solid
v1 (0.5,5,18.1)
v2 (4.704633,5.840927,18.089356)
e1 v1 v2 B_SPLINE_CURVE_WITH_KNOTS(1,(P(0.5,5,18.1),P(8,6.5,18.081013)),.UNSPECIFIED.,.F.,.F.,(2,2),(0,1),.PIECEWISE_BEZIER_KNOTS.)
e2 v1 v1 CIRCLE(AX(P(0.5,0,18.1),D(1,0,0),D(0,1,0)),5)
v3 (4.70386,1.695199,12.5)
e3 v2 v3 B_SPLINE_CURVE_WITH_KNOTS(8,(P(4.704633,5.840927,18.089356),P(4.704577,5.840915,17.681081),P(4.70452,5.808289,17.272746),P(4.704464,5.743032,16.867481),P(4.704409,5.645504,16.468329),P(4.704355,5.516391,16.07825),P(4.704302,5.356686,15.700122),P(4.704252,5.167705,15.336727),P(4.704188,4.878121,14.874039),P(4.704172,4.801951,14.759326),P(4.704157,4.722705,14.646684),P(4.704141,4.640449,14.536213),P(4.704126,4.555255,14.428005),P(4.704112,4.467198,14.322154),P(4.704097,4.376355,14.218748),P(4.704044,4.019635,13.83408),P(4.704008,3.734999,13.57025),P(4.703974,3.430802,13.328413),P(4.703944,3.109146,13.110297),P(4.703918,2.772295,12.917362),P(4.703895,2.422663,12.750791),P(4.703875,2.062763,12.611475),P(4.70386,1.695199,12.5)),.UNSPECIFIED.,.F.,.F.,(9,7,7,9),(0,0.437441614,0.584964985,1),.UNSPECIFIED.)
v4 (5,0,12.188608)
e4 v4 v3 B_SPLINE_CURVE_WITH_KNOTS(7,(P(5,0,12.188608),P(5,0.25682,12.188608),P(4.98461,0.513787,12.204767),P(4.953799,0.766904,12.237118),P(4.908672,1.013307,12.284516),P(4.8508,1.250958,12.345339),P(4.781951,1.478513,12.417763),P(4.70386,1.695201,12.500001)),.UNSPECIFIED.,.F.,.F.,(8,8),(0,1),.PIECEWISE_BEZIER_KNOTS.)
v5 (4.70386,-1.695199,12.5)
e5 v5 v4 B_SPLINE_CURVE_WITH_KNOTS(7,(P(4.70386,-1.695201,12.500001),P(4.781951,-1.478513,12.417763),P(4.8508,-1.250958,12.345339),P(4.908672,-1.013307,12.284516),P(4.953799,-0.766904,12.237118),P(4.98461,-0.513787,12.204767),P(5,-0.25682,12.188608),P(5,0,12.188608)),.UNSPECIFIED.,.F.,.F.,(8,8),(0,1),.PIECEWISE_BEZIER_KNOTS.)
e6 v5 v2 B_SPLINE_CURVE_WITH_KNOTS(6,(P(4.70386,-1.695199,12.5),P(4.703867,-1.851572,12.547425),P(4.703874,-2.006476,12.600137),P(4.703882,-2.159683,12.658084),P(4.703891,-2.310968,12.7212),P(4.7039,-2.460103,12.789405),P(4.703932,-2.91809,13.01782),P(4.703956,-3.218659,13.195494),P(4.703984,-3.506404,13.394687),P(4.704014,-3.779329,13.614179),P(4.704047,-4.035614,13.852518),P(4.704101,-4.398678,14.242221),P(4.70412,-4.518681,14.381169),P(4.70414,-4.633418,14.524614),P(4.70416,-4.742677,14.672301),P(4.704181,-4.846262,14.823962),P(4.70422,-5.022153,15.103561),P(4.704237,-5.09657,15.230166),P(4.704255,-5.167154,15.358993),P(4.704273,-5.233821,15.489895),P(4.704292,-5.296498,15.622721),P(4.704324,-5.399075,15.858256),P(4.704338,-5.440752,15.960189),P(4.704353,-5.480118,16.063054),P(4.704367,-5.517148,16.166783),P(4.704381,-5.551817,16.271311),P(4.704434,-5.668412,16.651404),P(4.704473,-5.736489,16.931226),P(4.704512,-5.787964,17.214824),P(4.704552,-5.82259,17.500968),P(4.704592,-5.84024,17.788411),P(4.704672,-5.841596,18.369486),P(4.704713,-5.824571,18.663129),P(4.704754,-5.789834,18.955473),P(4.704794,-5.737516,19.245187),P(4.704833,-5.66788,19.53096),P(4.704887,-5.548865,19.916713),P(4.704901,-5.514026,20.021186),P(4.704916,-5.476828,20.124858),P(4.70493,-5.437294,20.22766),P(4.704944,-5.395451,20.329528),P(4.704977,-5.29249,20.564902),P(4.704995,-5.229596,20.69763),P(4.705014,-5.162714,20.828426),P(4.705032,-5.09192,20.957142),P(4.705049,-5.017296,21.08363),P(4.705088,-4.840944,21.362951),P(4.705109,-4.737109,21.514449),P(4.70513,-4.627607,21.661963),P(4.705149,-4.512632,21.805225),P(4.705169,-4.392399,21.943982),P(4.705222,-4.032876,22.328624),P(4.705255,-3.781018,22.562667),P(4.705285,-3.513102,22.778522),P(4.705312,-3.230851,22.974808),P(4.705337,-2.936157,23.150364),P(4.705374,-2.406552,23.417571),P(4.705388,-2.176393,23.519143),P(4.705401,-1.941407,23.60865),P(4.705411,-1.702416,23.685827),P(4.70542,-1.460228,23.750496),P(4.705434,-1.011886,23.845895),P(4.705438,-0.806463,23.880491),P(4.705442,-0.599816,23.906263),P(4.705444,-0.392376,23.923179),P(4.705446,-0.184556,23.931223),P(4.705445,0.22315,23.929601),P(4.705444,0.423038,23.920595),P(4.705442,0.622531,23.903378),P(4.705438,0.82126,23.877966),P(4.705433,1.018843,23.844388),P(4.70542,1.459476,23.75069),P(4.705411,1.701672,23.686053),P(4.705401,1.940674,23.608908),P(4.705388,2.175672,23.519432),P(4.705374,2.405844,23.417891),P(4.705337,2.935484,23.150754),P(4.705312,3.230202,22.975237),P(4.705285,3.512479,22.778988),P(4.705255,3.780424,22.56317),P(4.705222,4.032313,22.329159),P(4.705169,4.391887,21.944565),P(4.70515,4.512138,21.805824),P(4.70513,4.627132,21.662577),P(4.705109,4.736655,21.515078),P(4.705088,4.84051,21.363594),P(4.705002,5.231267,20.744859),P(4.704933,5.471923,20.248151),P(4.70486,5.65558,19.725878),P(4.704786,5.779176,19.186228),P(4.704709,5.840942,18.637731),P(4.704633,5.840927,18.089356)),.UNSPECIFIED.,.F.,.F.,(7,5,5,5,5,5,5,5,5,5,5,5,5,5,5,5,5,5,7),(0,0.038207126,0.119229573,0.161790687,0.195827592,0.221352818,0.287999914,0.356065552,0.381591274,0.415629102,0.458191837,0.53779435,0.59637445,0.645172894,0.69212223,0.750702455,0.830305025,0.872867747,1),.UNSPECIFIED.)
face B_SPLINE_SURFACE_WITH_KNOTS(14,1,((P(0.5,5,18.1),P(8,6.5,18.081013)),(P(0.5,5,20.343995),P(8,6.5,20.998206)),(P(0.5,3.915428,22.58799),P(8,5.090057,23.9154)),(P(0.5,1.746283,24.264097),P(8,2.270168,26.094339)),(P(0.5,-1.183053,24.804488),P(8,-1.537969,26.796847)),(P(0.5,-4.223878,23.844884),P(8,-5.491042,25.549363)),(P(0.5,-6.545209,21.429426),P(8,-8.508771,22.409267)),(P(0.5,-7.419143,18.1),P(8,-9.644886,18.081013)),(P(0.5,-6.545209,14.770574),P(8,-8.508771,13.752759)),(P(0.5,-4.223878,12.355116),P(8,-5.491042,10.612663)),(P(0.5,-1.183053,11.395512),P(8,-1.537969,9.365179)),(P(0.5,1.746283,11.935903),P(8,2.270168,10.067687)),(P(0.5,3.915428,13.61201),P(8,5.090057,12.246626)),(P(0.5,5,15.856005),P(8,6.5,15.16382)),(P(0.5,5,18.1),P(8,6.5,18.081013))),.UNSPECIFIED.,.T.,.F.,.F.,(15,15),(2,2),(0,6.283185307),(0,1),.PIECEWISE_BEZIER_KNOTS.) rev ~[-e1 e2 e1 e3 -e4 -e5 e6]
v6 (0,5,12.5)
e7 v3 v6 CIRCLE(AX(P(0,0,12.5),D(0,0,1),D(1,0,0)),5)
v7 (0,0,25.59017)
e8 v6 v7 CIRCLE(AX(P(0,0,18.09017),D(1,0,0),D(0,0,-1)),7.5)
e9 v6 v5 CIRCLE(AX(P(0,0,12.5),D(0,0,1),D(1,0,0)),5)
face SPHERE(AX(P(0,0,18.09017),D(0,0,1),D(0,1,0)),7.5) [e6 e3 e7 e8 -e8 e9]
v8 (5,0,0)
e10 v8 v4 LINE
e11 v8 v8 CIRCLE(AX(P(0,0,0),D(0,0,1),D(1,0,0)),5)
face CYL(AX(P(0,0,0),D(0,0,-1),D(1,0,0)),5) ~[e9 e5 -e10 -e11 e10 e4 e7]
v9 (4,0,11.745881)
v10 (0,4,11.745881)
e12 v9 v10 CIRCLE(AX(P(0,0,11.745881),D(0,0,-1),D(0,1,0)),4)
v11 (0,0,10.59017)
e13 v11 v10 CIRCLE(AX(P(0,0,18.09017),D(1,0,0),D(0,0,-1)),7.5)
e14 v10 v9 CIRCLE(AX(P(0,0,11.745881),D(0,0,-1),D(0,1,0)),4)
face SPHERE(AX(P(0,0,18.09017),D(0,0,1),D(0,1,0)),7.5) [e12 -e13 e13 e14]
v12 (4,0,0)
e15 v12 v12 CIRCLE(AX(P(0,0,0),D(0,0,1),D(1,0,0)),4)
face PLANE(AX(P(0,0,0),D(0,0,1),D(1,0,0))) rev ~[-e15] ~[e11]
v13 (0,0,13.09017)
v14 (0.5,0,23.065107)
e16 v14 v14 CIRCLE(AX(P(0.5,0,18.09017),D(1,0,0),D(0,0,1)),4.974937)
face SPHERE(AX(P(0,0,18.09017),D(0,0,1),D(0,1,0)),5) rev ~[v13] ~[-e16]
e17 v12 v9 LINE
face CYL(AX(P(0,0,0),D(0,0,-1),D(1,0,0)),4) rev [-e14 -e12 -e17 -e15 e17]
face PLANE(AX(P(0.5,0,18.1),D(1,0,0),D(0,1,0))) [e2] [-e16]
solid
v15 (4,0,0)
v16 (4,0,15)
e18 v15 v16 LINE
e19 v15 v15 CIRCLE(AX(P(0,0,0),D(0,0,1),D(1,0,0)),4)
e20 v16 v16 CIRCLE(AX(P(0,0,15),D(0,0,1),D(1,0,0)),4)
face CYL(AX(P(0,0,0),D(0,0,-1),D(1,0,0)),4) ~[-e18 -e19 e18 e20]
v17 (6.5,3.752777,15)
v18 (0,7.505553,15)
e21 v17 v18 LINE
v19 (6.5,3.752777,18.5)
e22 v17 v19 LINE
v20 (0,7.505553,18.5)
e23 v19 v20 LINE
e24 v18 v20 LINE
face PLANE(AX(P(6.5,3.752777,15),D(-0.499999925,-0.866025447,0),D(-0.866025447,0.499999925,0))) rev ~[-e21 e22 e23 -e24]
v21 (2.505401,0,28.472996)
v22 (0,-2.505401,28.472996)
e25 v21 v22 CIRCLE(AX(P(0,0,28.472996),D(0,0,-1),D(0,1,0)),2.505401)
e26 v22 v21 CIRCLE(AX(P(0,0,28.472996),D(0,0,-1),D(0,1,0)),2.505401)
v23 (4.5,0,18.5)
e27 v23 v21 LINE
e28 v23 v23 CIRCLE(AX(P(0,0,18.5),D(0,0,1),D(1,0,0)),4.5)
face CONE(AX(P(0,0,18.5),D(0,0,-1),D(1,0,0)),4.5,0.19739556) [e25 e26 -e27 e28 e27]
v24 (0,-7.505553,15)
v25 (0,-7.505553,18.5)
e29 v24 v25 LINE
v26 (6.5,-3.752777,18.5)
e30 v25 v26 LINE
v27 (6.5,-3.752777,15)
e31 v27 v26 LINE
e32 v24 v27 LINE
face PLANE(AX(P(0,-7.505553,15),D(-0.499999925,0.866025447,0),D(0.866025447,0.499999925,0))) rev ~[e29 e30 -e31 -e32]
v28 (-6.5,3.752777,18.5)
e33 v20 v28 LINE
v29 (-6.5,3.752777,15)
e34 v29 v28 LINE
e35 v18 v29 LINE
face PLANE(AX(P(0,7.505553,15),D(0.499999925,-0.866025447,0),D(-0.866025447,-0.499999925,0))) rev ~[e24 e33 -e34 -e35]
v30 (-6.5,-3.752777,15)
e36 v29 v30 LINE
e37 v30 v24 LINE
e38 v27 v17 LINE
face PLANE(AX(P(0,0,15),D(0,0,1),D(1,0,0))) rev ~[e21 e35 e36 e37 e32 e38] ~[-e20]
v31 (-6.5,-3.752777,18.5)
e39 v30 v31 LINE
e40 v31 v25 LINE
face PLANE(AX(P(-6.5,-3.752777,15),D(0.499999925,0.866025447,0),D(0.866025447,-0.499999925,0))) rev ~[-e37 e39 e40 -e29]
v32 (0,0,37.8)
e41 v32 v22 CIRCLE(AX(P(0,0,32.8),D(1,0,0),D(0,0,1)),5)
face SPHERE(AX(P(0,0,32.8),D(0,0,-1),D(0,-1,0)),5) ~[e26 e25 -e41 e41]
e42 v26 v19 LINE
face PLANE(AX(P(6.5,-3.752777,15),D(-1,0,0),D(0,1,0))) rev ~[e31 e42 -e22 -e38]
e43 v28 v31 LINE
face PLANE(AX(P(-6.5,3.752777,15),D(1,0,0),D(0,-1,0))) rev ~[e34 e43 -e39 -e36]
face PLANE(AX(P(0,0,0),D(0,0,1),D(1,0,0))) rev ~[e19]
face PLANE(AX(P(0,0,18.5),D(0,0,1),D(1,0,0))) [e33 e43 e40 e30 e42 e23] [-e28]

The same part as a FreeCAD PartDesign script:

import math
import FreeCAD as App
import Part
import Sketcher
Q = App.Units.Quantity


def add_polygon(sketch, points):
    """Adds a closed chain of lines whose ends are joined by coincident constraints."""
    first, n = sketch.GeometryCount, len(points)
    for a, b in zip(points, points[1:] + points[:1]):
        sketch.addGeometry(Part.LineSegment(App.Vector(*a, 0), App.Vector(*b, 0)), False)
    for i in range(n):
        sketch.addConstraint(Sketcher.Constraint("Coincident", first + i, 2, first + (i + 1) % n, 1))

doc = App.newDocument("Part")
params = doc.addObject("Spreadsheet::Sheet", "Params")
for row, (alias, value) in enumerate([
    ("sketch1_diameter", "8 mm"),
    ("pad1_length", "15 mm"),
    ("pad2_length", "3.5 mm"),
    ("sketch3_height", "10 mm"),
    ("sketch3_width", "4.5 mm"),
    ("sketch3_width2", "2.5 mm"),
    ("revolution_angle", "360 deg"),
    ("sketch4_radius", "5 mm"),
    ("revolution2_angle", "360 deg"),
    ("sketch5_diameter", "10 mm"),
    ("sketch5_diameter2", "8 mm"),
    ("pad3_length", "12.5 mm"),
    ("sketch6_radius", "5 mm"),
    ("sketch6_radius2", "7.5 mm"),
    ("revolution3_angle", "360 deg"),
    ("sketch7_diameter", "10 mm"),
    ("sketch8_diameter", "13 mm"),
], start=1):
    params.set(f"A{row}", alias)
    params.set(f"B{row}", "=" + value)
    params.setAlias(f"B{row}", alias)

body = doc.addObject("PartDesign::Body", "Body")

# Sketch on XY plane
sketch1 = body.newObject("Sketcher::SketchObject", "Sketch")
sketch1.AttachmentSupport = (doc.getObject("XY_Plane"), [""])
sketch1.MapMode = "FlatFace"
sketch1.addGeometry(Part.Circle(App.Vector(0, 0, 0), App.Vector(0, 0, 1), 4), False)
sketch1.addConstraint(Sketcher.Constraint("Coincident", 0, 3, -1, 1))
sketch1.addConstraint(Sketcher.Constraint("Diameter", 0, 8.0))
sketch1.setExpression("Constraints[1]", "Params.sketch1_diameter")
pad1 = body.newObject("PartDesign::Pad", "Pad")
pad1.Profile = sketch1
pad1.setExpression("Length", "Params.pad1_length")

# Sketch on XY plane
sketch2 = body.newObject("Sketcher::SketchObject", "Sketch001")
sketch2.AttachmentSupport = (doc.getObject("XY_Plane"), [""])
sketch2.MapMode = "FlatFace"
sketch2.AttachmentOffset = App.Placement(App.Vector(0, 0, 15), App.Rotation())
add_polygon(sketch2, [(0, -7.505553), (6.5, -3.752777), (6.5, 3.752777), (0, 7.505553), (-6.5, 3.752777), (-6.5, -3.752777)])  # lines 0-5
sketch2.addConstraint(Sketcher.Constraint("Vertical", 1))
sketch2.addConstraint(Sketcher.Constraint("Vertical", 4))
sketch2.addConstraint(Sketcher.Constraint("Symmetric", 0, 2, 3, 2, -1, 1))
sketch2.addConstraint(Sketcher.Constraint("Symmetric", 2, 2, 5, 2, -1, 1))
sketch2.addConstraint(Sketcher.Constraint("PointOnObject", 2, 2, -2))
sketch2.addConstraint(Sketcher.Constraint("Parallel", 2, 5))
sketch2.addConstraint(Sketcher.Constraint("Horizontal", 1, 2, 3, 2))
sketch2.addConstraint(Sketcher.Constraint("Angle", 0, Q("29.999995 deg")))
sketch2.addConstraint(Sketcher.Constraint("DistanceX", 3, 2, 1, 2, 13.0))
sketch2.addConstraint(Sketcher.Constraint("DistanceY", 1, 1, 1, 2, 7.505554))
pad2 = body.newObject("PartDesign::Pad", "Pad001")
pad2.Profile = sketch2
pad2.setExpression("Length", "Params.pad2_length")

# Sketch on XZ plane
sketch3 = body.newObject("Sketcher::SketchObject", "Sketch002")
sketch3.AttachmentSupport = (doc.getObject("XZ_Plane"), [""])
sketch3.MapMode = "FlatFace"
add_polygon(sketch3, [(0, 18.5), (4.5, 18.5), (2.5, 28.5), (0, 28.5)])  # lines 0-3
sketch3.addConstraint(Sketcher.Constraint("Horizontal", 0))
sketch3.addConstraint(Sketcher.Constraint("Horizontal", 2))
sketch3.addConstraint(Sketcher.Constraint("Vertical", 3))
sketch3.addConstraint(Sketcher.Constraint("PointOnObject", 2, 2, -2))
sketch3.addConstraint(Sketcher.Constraint("DistanceY", 3, 2, 3, 1, 10.0))
sketch3.addConstraint(Sketcher.Constraint("DistanceX", 0, 1, 0, 2, 4.5))
sketch3.addConstraint(Sketcher.Constraint("DistanceX", 2, 2, 2, 1, 2.5))
sketch3.addConstraint(Sketcher.Constraint("DistanceY", -1, 1, 0, 2, 18.5))
sketch3.setExpression("Constraints[8]", "Params.sketch3_height")
sketch3.setExpression("Constraints[9]", "Params.sketch3_width")
sketch3.setExpression("Constraints[10]", "Params.sketch3_width2")
revolution = body.newObject("PartDesign::Revolution", "Revolution")
revolution.Profile = sketch3
revolution.ReferenceAxis = (sketch3, ["V_Axis"])
revolution.setExpression("Angle", "Params.revolution_angle")

# Sketch on YZ plane
sketch4 = body.newObject("Sketcher::SketchObject", "Sketch003")
sketch4.AttachmentSupport = (doc.getObject("YZ_Plane"), [""])
sketch4.MapMode = "FlatFace"
sketch4.addGeometry(Part.ArcOfCircle(Part.Circle(App.Vector(0, 32.8, 0), App.Vector(0, 0, 1), 5), math.radians(90), math.radians(270)), False)
sketch4.addGeometry(Part.LineSegment(App.Vector(0, 27.8, 0), App.Vector(0, 37.8, 0)), False)
sketch4.addConstraint(Sketcher.Constraint("Coincident", 0, 1, 1, 2))
sketch4.addConstraint(Sketcher.Constraint("Coincident", 1, 1, 0, 2))
sketch4.addConstraint(Sketcher.Constraint("Vertical", 1))
sketch4.addConstraint(Sketcher.Constraint("PointOnObject", 0, 3, -2))
sketch4.addConstraint(Sketcher.Constraint("PointOnObject", 0, 1, -2))
sketch4.addConstraint(Sketcher.Constraint("Radius", 0, 5.0))
sketch4.addConstraint(Sketcher.Constraint("DistanceY", -1, 1, 0, 3, 32.8))
sketch4.setExpression("Constraints[5]", "Params.sketch4_radius")
revolution2 = body.newObject("PartDesign::Revolution", "Revolution001")
revolution2.Profile = sketch4
revolution2.ReferenceAxis = (sketch4, ["V_Axis"])
revolution2.setExpression("Angle", "Params.revolution2_angle")
body2 = doc.addObject("PartDesign::Body", "Body001")

# Sketch on XY plane
sketch5 = body2.newObject("Sketcher::SketchObject", "Sketch004")
sketch5.AttachmentSupport = (doc.getObject("XY_Plane001"), [""])
sketch5.MapMode = "FlatFace"
sketch5.addGeometry(Part.Circle(App.Vector(0, 0, 0), App.Vector(0, 0, 1), 5), False)
sketch5.addGeometry(Part.Circle(App.Vector(0, 0, 0), App.Vector(0, 0, 1), 4), False)
sketch5.addConstraint(Sketcher.Constraint("Coincident", 0, 3, -1, 1))
sketch5.addConstraint(Sketcher.Constraint("Coincident", 1, 3, -1, 1))
sketch5.addConstraint(Sketcher.Constraint("Diameter", 0, 10.0))
sketch5.addConstraint(Sketcher.Constraint("Diameter", 1, 8.0))
sketch5.setExpression("Constraints[2]", "Params.sketch5_diameter")
sketch5.setExpression("Constraints[3]", "Params.sketch5_diameter2")
pad3 = body2.newObject("PartDesign::Pad", "Pad002")
pad3.Profile = sketch5
pad3.setExpression("Length", "Params.pad3_length")

# Sketch on YZ plane
sketch6 = body2.newObject("Sketcher::SketchObject", "Sketch005")
sketch6.AttachmentSupport = (doc.getObject("YZ_Plane001"), [""])
sketch6.MapMode = "FlatFace"
sketch6.addGeometry(Part.ArcOfCircle(Part.Circle(App.Vector(0, 18.09017, 0), App.Vector(0, 0, 1), 7.5), math.radians(-90), math.radians(90)), False)
sketch6.addGeometry(Part.LineSegment(App.Vector(0, 25.59017, 0), App.Vector(0, 23.09017, 0)), False)
sketch6.addGeometry(Part.ArcOfCircle(Part.Circle(App.Vector(0, 18.09017, 0), App.Vector(0, 0, 1), 5), math.radians(-90), math.radians(90)), False)
sketch6.addGeometry(Part.LineSegment(App.Vector(0, 13.09017, 0), App.Vector(0, 10.59017, 0)), False)
sketch6.addConstraint(Sketcher.Constraint("Coincident", 0, 2, 1, 1))
sketch6.addConstraint(Sketcher.Constraint("Coincident", 1, 2, 2, 2))
sketch6.addConstraint(Sketcher.Constraint("Coincident", 2, 1, 3, 1))
sketch6.addConstraint(Sketcher.Constraint("Coincident", 3, 2, 0, 1))
sketch6.addConstraint(Sketcher.Constraint("Vertical", 1))
sketch6.addConstraint(Sketcher.Constraint("Vertical", 3))
sketch6.addConstraint(Sketcher.Constraint("Coincident", 2, 3, 0, 3))
sketch6.addConstraint(Sketcher.Constraint("PointOnObject", 0, 3, -2))
sketch6.addConstraint(Sketcher.Constraint("PointOnObject", 0, 2, -2))
sketch6.addConstraint(Sketcher.Constraint("PointOnObject", 2, 1, -2))
sketch6.addConstraint(Sketcher.Constraint("Radius", 2, 5.0))
sketch6.addConstraint(Sketcher.Constraint("Radius", 0, 7.5))
sketch6.addConstraint(Sketcher.Constraint("DistanceY", -1, 1, 0, 3, 18.09017))
sketch6.setExpression("Constraints[10]", "Params.sketch6_radius")
sketch6.setExpression("Constraints[11]", "Params.sketch6_radius2")
revolution3 = body2.newObject("PartDesign::Revolution", "Revolution002")
revolution3.Profile = sketch6
revolution3.ReferenceAxis = (sketch6, ["V_Axis"])
revolution3.setExpression("Angle", "Params.revolution3_angle")

# Sketch on YZ plane
sketch7 = body2.newObject("Sketcher::SketchObject", "Sketch006")
sketch7.AttachmentSupport = (doc.getObject("YZ_Plane001"), [""])
sketch7.MapMode = "FlatFace"
sketch7.AttachmentOffset = App.Placement(App.Vector(0, 0, 0.5), App.Rotation())
sketch7.addGeometry(Part.Circle(App.Vector(0, 18.1, 0), App.Vector(0, 0, 1), 5), False)
sketch7.addConstraint(Sketcher.Constraint("PointOnObject", 0, 3, -2))
sketch7.addConstraint(Sketcher.Constraint("Diameter", 0, 10.0))
sketch7.addConstraint(Sketcher.Constraint("DistanceY", -1, 1, 0, 3, 18.1))
sketch7.setExpression("Constraints[1]", "Params.sketch7_diameter")

# Sketch on YZ plane
sketch8 = body2.newObject("Sketcher::SketchObject", "Sketch007")
sketch8.AttachmentSupport = (doc.getObject("YZ_Plane001"), [""])
sketch8.MapMode = "FlatFace"
sketch8.AttachmentOffset = App.Placement(App.Vector(0, 0, 8), App.Rotation())
sketch8.addGeometry(Part.Circle(App.Vector(0, 18.081013, 0), App.Vector(0, 0, 1), 6.5), False)
sketch8.addConstraint(Sketcher.Constraint("PointOnObject", 0, 3, -2))
sketch8.addConstraint(Sketcher.Constraint("Diameter", 0, 13.0))
sketch8.addConstraint(Sketcher.Constraint("DistanceY", -1, 1, 0, 3, 18.081013))
sketch8.setExpression("Constraints[1]", "Params.sketch8_diameter")

subtractiveloft = body2.newObject("PartDesign::SubtractiveLoft", "SubtractiveLoft")
subtractiveloft.Profile = sketch7
subtractiveloft.Sections = [sketch8]

doc.recompute()
